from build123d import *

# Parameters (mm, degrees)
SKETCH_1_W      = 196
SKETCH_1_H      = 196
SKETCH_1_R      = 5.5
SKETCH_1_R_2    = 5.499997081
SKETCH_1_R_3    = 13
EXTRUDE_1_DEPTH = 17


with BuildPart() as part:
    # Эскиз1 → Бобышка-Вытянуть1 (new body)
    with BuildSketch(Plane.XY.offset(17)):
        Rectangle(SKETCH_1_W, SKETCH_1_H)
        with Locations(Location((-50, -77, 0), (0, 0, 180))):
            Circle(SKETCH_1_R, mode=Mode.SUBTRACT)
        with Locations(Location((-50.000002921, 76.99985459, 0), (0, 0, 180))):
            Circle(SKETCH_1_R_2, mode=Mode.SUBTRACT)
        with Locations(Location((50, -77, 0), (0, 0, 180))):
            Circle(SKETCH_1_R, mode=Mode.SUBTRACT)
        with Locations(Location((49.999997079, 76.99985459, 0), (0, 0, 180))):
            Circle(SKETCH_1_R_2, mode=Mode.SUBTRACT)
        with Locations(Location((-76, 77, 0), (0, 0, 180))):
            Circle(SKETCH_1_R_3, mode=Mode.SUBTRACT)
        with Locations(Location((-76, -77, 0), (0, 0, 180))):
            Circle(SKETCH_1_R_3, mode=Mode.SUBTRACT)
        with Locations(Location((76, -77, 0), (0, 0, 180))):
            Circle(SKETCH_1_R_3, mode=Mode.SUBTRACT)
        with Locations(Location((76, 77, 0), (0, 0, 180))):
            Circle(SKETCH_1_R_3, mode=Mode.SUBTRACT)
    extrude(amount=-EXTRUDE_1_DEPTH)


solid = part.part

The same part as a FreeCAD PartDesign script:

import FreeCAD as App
import Part
import Sketcher

V = App.Vector


def add_polygon(sketch, points):
    """Adds a closed chain of lines whose ends are joined by coincident constraints."""
    first, n = sketch.GeometryCount, len(points)
    for a, b in zip(points, points[1:] + points[:1]):
        sketch.addGeometry(Part.LineSegment(App.Vector(*a, 0), App.Vector(*b, 0)), False)
    for i in range(n):
        sketch.addConstraint(Sketcher.Constraint("Coincident", first + i, 2, first + (i + 1) % n, 1))

doc = App.newDocument("Part")
params = doc.addObject("Spreadsheet::Sheet", "Params")
for row, (alias, value) in enumerate([
    ("sketch1_diameter", "26 mm"),
    ("sketch1_diameter2", "11 mm"),
    ("sketch1_width", "196 mm"),
    ("pad1_length", "17 mm"),
], start=1):
    params.set(f"A{row}", alias)
    params.set(f"B{row}", "=" + value)
    params.setAlias(f"B{row}", alias)

body = doc.addObject("PartDesign::Body", "Body")

# Sketch on XY plane
sketch1 = body.newObject("Sketcher::SketchObject", "Sketch")
sketch1.AttachmentSupport = (doc.getObject("XY_Plane"), [""])
sketch1.MapMode = "FlatFace"
sketch1.AttachmentOffset = App.Placement(V(0, 0, 17), App.Rotation())
add_polygon(sketch1, [(-98, 98), (-98, -98), (98, -98), (98, 98)])  # lines 0-3
sketch1.addGeometry(Part.Circle(V(-76, -77, 0), V(0, 0, 1), 13), False)  # 4
sketch1.addGeometry(Part.Circle(V(-50, -77, 0), V(0, 0, 1), 6), False)  # 5
sketch1.addGeometry(Part.Circle(V(50, -77, 0), V(0, 0, 1), 6), False)  # 6
sketch1.addGeometry(Part.Circle(V(76, -77, 0), V(0, 0, 1), 13), False)  # 7
sketch1.addGeometry(Part.Circle(V(-76, 77, 0), V(0, 0, 1), 13), False)  # 8
sketch1.addGeometry(Part.Circle(V(-50, 77, 0), V(0, 0, 1), 5), False)  # 9
sketch1.addGeometry(Part.Circle(V(50, 77, 0), V(0, 0, 1), 5), False)  # 10
sketch1.addGeometry(Part.Circle(V(76, 77, 0), V(0, 0, 1), 13), False)  # 11
sketch1.addConstraint([
    Sketcher.Constraint("Vertical", 0),
    Sketcher.Constraint("Horizontal", 1),
    Sketcher.Constraint("Vertical", 2),
    Sketcher.Constraint("Horizontal", 3),
    Sketcher.Constraint("Equal", 5, 6),
    Sketcher.Constraint("Equal", 4, 7),
    Sketcher.Constraint("Equal", 7, 8),
    Sketcher.Constraint("Equal", 9, 10),
    Sketcher.Constraint("Equal", 8, 11),
    Sketcher.Constraint("Symmetric", 7, 3, 8, 3, -1, 1),
    Sketcher.Constraint("Symmetric", 4, 3, 11, 3, -1, 1),
    Sketcher.Constraint("Symmetric", 0, 2, 2, 2, -1, 1),
    Sketcher.Constraint("Symmetric", 5, 3, 6, 3, -2),
    Sketcher.Constraint("Symmetric", 4, 3, 7, 3, -2),
    Sketcher.Constraint("Symmetric", 9, 3, 10, 3, -2),
    Sketcher.Constraint("Horizontal", 4, 3, 5, 3),
    Sketcher.Constraint("Equal", 3, 0),
    Sketcher.Constraint("Diameter", 4, 26.0),
    Sketcher.Constraint("Diameter", 5, 11.0),
    Sketcher.Constraint("DistanceX", 1, 1, 1, 2, 196.0),
    Sketcher.Constraint("DistanceX", 4, 3, -1, 1, 76.0),
    Sketcher.Constraint("DistanceY", 4, 3, -1, 1, 77.0),
    Sketcher.Constraint("DistanceX", 5, 3, -1, 1, 50.0),
    Sketcher.Constraint("DistanceX", 9, 3, 10, 3, 100.0),
    Sketcher.Constraint("Diameter", 9, 10.999994),
    Sketcher.Constraint("DistanceY", -1, 1, 9, 3, 76.999855),
])
sketch1.setExpression("Constraints[21]", "Params.sketch1_diameter")
sketch1.setExpression("Constraints[22]", "Params.sketch1_diameter2")
sketch1.setExpression("Constraints[23]", "Params.sketch1_width")
pad1 = body.newObject("PartDesign::Pad", "Pad")
pad1.Profile = sketch1
pad1.setExpression("Length", "Params.pad1_length")
pad1.Reversed = True

doc.recompute()
